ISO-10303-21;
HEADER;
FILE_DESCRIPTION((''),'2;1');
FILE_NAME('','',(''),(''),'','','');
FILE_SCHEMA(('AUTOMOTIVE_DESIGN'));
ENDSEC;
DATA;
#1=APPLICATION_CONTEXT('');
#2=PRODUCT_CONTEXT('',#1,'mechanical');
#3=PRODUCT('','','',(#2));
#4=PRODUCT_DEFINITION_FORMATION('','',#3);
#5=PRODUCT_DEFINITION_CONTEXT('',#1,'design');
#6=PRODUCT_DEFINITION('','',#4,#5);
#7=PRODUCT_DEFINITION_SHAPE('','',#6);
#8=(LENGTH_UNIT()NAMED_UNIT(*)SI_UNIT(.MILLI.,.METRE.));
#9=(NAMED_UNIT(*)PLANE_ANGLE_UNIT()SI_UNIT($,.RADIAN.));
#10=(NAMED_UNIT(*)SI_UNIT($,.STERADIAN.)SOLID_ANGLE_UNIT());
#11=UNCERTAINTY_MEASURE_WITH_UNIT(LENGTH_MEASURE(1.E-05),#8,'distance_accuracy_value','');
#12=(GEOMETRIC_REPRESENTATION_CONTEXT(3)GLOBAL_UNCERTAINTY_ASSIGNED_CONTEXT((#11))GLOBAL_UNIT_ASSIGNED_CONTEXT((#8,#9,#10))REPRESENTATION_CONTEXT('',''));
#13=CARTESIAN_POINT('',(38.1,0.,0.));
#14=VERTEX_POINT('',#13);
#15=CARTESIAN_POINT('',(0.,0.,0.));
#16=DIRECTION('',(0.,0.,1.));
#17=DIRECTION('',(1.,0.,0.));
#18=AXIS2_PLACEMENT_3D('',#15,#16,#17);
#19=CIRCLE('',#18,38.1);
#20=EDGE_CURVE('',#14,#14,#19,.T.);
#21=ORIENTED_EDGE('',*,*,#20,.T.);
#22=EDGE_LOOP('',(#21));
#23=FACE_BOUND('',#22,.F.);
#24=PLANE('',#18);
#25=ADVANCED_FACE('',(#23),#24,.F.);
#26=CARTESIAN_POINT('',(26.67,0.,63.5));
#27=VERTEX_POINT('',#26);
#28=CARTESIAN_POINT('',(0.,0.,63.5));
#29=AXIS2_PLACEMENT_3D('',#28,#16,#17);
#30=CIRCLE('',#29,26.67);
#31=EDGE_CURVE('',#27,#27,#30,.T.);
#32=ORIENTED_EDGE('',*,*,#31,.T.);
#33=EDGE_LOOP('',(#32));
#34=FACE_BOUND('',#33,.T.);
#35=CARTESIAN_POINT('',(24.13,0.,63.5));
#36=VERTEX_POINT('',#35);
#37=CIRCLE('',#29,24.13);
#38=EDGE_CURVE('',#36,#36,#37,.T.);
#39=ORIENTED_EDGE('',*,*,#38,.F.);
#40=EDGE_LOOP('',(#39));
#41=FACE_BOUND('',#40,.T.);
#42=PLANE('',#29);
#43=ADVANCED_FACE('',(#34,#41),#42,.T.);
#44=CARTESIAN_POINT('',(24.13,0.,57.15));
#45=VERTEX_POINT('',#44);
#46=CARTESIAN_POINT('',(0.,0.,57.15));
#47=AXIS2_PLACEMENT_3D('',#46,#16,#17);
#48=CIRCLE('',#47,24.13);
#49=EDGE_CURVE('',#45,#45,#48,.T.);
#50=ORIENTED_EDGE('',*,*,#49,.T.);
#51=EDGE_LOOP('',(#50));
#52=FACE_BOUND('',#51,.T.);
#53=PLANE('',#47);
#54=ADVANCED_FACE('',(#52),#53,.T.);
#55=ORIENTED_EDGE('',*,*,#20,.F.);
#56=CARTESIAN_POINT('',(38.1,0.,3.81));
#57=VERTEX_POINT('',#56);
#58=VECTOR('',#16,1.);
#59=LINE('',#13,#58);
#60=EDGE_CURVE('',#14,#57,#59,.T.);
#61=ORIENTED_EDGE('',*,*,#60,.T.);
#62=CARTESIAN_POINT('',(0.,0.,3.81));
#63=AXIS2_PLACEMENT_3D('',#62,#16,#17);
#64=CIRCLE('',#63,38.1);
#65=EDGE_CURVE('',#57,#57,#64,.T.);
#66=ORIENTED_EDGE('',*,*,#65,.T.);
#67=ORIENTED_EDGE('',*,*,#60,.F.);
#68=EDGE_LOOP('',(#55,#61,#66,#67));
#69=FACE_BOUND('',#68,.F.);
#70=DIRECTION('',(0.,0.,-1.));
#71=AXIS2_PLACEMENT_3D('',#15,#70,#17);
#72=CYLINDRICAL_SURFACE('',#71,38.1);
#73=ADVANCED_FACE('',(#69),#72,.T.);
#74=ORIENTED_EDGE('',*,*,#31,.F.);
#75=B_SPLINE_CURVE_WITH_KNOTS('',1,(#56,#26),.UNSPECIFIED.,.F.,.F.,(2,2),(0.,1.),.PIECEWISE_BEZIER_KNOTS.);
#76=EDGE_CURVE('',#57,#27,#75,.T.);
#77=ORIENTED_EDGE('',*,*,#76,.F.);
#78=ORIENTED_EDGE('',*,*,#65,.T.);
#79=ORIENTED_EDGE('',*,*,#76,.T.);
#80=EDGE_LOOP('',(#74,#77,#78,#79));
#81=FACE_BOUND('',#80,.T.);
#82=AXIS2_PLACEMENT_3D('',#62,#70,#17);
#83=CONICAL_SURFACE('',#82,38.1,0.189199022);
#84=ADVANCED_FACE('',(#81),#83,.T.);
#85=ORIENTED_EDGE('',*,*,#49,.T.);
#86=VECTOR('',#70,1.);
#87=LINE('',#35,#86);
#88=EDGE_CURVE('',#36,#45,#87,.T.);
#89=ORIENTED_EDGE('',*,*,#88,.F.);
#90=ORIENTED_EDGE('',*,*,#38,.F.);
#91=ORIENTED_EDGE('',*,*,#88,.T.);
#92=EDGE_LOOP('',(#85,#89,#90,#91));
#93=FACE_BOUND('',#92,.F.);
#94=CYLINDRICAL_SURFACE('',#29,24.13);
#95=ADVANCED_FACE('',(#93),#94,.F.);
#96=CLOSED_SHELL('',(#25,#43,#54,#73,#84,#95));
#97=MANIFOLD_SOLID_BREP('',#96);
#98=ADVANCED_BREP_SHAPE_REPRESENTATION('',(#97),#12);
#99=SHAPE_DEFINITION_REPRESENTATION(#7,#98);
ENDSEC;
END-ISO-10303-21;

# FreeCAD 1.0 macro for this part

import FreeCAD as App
import Part
import Sketcher
Q = App.Units.Quantity

doc = App.newDocument("Part")
body = doc.addObject("PartDesign::Body", "Body")

sketch1 = body.newObject("Sketcher::SketchObject", "Sketch")
sketch1.AttachmentSupport = (doc.getObject("XY_Plane"), [""])
sketch1.MapMode = "FlatFace"
sketch1.addGeometry(Part.Circle(App.Vector(0, 0, 0), App.Vector(0, 0, 1), 38.1), False)
sketch1.addConstraint([
    Sketcher.Constraint("Coincident", 0, 3, -1, 1),
    Sketcher.Constraint("Diameter", 0, Q("3 in")),
])
pad1 = body.newObject("PartDesign::Pad", "Pad")
pad1.Profile = sketch1
pad1.Length = Q("0.15 in")

sketch2 = body.newObject("Sketcher::SketchObject", "Sketch001")
sketch2.AttachmentSupport = (doc.getObject("XY_Plane"), [""])
sketch2.MapMode = "FlatFace"
sketch2.AttachmentOffset = App.Placement(App.Vector(0, 0, 0.15 * 25.4), App.Rotation())
sketch2.addGeometry(Part.Circle(App.Vector(0, 0, 0), App.Vector(0, 0, 1), 38.1), False)
sketch2.addConstraint([
    Sketcher.Constraint("Coincident", 0, 3, -1, 1),
    Sketcher.Constraint("Diameter", 0, Q("3 in")),
])

sketch3 = body.newObject("Sketcher::SketchObject", "Sketch002")
sketch3.AttachmentSupport = (doc.getObject("XY_Plane"), [""])
sketch3.MapMode = "FlatFace"
sketch3.AttachmentOffset = App.Placement(App.Vector(0, 0, 2.5 * 25.4), App.Rotation())
sketch3.addGeometry(Part.Circle(App.Vector(0, 0, 0), App.Vector(0, 0, 1), 26.67), False)
sketch3.addConstraint([
    Sketcher.Constraint("Coincident", 0, 3, -1, 1),
    Sketcher.Constraint("Diameter", 0, Q("2.1 in")),
])

additiveloft = body.newObject("PartDesign::AdditiveLoft", "AdditiveLoft")
additiveloft.Profile = sketch2
additiveloft.Sections = [sketch3]

sketch4 = body.newObject("Sketcher::SketchObject", "Sketch003")
sketch4.AttachmentSupport = (doc.getObject("XY_Plane"), [""])
sketch4.MapMode = "FlatFace"
sketch4.AttachmentOffset = App.Placement(App.Vector(0, 0, 2.5 * 25.4), App.Rotation())
sketch4.addGeometry(Part.Circle(App.Vector(0, 0, 0), App.Vector(0, 0, 1), 24.13), False)
sketch4.addConstraint([
    Sketcher.Constraint("Coincident", 0, 3, -1, 1),
    Sketcher.Constraint("Diameter", 0, Q("1.9 in")),
])
pocket1 = body.newObject("PartDesign::Pocket", "Pocket")
pocket1.Profile = sketch4
pocket1.Length = Q("0.25 in")

doc.recompute()
